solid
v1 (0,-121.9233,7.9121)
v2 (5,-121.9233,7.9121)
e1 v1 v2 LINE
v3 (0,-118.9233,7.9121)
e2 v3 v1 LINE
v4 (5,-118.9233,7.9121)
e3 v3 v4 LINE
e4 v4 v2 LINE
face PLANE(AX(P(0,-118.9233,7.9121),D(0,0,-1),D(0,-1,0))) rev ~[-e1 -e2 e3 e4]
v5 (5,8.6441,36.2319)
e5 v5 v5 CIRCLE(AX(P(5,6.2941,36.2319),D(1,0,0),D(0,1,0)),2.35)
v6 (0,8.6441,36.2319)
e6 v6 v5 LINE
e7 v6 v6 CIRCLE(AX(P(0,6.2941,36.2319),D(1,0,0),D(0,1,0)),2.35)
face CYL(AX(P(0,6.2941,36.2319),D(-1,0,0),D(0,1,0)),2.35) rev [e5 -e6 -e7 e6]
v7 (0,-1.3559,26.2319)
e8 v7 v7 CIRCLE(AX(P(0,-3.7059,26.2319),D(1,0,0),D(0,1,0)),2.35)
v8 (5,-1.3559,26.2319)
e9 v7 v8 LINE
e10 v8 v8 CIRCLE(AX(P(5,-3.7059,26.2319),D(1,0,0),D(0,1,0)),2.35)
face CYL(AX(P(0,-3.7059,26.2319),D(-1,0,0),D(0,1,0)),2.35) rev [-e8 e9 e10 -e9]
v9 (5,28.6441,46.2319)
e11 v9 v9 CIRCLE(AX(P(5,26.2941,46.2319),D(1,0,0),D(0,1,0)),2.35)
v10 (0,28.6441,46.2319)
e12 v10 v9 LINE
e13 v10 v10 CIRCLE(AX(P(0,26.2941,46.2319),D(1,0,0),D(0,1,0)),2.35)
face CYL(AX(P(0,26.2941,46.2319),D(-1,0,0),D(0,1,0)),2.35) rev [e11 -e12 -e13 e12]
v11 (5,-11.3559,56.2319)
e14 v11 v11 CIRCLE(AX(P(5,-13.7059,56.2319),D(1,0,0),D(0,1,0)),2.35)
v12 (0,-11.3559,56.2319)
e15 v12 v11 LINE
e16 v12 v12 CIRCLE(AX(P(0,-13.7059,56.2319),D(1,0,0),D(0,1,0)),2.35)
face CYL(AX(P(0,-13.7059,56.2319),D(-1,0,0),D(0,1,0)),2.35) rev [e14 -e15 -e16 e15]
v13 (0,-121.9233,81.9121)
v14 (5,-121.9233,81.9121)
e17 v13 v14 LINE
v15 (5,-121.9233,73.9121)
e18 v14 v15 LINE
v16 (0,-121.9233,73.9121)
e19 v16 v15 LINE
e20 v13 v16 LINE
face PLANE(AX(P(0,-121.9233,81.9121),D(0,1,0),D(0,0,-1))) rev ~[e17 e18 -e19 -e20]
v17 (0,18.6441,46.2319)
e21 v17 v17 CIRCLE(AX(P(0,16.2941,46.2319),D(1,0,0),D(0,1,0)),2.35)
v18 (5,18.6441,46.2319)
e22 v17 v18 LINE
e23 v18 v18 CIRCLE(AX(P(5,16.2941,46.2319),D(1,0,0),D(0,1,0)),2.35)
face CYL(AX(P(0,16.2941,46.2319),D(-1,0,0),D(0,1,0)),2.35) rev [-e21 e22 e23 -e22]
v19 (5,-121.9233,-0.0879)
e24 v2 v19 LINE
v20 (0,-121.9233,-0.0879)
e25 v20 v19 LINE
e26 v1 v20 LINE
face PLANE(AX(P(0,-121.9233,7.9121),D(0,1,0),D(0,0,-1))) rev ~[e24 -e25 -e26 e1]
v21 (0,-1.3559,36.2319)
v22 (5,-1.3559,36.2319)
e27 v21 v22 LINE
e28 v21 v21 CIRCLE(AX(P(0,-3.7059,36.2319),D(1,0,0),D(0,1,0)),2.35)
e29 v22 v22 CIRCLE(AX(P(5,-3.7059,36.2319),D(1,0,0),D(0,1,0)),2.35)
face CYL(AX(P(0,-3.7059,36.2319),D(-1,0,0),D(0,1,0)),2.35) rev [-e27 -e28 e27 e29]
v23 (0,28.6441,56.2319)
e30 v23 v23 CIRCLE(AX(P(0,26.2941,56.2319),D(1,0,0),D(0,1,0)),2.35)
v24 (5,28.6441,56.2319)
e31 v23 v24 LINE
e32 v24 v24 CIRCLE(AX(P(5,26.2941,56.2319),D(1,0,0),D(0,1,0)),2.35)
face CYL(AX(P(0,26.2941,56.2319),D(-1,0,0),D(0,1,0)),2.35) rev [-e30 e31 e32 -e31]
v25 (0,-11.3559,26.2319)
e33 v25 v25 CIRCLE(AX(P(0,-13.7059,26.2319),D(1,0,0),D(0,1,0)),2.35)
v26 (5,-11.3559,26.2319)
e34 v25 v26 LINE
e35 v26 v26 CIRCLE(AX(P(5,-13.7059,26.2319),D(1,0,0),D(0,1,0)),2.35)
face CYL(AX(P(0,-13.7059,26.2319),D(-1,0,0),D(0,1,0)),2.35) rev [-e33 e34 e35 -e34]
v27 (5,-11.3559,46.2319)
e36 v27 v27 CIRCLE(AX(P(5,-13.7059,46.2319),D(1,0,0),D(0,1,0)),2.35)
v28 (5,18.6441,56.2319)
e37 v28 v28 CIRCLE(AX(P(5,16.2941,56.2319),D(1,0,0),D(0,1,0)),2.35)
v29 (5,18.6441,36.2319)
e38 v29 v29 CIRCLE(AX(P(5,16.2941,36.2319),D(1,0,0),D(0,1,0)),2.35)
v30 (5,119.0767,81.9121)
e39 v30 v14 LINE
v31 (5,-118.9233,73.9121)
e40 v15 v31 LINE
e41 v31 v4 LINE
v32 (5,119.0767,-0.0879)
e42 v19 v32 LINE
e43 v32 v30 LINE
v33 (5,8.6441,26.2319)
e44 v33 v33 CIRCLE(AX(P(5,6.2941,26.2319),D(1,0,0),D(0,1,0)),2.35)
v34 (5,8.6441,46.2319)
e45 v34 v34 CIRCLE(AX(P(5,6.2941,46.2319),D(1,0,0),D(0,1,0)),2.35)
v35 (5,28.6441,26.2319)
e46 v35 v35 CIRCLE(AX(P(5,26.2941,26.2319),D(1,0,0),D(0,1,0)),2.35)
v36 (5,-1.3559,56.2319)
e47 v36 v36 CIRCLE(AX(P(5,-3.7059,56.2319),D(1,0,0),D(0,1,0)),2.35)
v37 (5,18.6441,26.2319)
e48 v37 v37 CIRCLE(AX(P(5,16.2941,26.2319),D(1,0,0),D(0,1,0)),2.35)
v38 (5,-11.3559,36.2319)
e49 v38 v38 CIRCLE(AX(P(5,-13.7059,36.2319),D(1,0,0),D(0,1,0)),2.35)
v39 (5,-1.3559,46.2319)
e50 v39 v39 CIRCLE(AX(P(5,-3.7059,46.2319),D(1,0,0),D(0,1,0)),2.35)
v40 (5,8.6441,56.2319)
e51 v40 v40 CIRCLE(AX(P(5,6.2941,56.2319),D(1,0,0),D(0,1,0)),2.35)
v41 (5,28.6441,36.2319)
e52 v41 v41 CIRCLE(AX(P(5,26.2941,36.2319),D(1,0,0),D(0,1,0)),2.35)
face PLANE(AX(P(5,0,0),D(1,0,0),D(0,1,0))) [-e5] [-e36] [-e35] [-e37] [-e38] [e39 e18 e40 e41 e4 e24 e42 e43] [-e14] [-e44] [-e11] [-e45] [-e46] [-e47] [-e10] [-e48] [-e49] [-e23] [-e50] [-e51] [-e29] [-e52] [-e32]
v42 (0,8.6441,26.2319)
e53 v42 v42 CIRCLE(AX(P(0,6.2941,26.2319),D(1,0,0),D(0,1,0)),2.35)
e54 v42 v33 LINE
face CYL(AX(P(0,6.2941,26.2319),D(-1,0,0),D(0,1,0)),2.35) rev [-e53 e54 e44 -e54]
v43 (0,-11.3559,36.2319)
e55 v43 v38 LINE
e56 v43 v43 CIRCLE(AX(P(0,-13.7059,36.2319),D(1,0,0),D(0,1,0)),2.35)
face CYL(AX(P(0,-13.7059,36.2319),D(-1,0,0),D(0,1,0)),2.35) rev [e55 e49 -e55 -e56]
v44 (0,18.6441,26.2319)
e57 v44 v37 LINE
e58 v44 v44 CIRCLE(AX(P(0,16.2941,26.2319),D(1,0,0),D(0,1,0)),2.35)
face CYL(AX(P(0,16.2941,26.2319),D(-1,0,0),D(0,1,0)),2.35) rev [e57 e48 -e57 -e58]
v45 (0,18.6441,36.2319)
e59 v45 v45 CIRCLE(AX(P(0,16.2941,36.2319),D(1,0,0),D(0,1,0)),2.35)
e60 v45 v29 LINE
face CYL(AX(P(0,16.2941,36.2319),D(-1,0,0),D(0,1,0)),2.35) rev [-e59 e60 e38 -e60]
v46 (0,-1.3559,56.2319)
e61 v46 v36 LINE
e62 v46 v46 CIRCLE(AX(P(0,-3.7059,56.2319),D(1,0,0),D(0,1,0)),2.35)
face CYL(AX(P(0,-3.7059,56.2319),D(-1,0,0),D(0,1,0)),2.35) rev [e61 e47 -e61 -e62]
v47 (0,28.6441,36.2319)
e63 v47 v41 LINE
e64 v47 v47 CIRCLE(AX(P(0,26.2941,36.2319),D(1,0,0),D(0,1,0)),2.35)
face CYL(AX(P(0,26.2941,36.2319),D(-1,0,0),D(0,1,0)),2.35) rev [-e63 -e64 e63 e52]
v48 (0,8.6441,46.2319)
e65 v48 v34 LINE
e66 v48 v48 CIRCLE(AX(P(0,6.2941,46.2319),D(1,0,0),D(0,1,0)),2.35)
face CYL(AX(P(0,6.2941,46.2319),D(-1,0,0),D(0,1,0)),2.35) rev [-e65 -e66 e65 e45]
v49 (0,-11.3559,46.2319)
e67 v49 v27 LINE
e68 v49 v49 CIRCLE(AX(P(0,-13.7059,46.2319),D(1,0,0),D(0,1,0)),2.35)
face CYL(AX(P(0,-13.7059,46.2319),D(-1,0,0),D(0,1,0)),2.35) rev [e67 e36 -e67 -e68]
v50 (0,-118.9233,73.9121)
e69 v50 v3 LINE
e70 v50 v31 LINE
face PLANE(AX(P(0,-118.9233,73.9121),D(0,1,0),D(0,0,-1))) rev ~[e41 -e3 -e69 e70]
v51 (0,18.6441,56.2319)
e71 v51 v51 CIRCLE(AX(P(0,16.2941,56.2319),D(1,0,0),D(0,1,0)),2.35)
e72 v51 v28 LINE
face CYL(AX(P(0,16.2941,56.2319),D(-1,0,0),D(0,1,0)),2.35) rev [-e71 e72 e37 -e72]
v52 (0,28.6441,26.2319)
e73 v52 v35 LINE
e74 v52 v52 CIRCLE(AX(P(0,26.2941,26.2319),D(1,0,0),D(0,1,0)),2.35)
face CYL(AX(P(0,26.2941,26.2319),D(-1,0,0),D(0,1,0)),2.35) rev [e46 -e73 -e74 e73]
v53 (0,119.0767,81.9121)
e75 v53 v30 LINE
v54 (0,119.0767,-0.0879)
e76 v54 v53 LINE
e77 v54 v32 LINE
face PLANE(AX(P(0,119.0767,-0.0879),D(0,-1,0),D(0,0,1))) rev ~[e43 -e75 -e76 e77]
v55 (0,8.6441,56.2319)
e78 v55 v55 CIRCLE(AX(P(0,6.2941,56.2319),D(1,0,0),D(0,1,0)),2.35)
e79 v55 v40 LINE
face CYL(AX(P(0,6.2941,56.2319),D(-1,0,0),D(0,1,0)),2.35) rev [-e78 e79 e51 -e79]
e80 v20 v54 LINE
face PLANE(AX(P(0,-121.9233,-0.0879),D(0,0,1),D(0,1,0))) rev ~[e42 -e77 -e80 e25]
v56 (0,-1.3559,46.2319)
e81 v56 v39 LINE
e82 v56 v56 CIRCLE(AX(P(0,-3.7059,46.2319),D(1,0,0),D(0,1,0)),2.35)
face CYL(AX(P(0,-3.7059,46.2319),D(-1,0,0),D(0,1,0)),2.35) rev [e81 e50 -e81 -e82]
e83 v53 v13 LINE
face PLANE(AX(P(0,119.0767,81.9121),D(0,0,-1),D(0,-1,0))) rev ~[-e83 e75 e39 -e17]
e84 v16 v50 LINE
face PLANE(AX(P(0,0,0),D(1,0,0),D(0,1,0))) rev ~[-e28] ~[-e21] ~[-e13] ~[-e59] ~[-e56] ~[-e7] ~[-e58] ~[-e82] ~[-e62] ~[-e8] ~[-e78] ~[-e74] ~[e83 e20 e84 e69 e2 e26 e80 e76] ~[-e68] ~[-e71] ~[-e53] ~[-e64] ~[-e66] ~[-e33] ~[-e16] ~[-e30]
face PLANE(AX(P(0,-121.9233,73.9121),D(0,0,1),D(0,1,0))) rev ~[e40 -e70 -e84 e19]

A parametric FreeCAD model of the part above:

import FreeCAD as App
import Part
import Sketcher
from FreeCAD import Vector
Q = App.Units.Quantity

doc = App.newDocument("Part")
body = doc.addObject("PartDesign::Body", "Body")

# Sketch on YZ plane
sketch1 = body.newObject("Sketcher::SketchObject", "Sketch")
sketch1.AttachmentSupport = (doc.getObject("YZ_Plane"), [""])
sketch1.MapMode = "FlatFace"
sketch1.addGeometry([
    Part.LineSegment(Vector(119.1, -0.1, 0), Vector(119.1, 81.9, 0)),  # 0
    Part.LineSegment(Vector(119.1, 81.9, 0), Vector(-121.9, 81.9, 0)),  # 1
    Part.LineSegment(Vector(-121.9, 81.9, 0), Vector(-121.9, 73.9, 0)),  # 2
    Part.LineSegment(Vector(-121.9, 73.9, 0), Vector(-118.9, 73.9, 0)),  # 3
    Part.LineSegment(Vector(-118.9, 73.9, 0), Vector(-118.9, 7.9, 0)),  # 4
    Part.LineSegment(Vector(-118.9, 7.9, 0), Vector(-121.9, 7.9, 0)),  # 5
    Part.LineSegment(Vector(-121.9, 7.9, 0), Vector(-121.9, -0.1, 0)),  # 6
    Part.LineSegment(Vector(-121.9, -0.1, 0), Vector(119.1, -0.1, 0)),  # 7
    Part.Circle(Vector(-13.7, 26.2, 0), Vector(0, 0, 1), 2.4),  # 8
    Part.Circle(Vector(-3.7, 26.2, 0), Vector(0, 0, 1), 2.4),  # 9
    Part.Circle(Vector(-13.7, 36.2, 0), Vector(0, 0, 1), 2.4),  # 10
    Part.Circle(Vector(-3.7, 36.2, 0), Vector(0, 0, 1), 2.4),  # 11
    Part.Circle(Vector(6.3, 26.2, 0), Vector(0, 0, 1), 2.4),  # 12
    Part.Circle(Vector(16.3, 26.2, 0), Vector(0, 0, 1), 2.4),  # 13
    Part.Circle(Vector(26.3, 26.2, 0), Vector(0, 0, 1), 2.4),  # 14
    Part.Circle(Vector(6.3, 36.2, 0), Vector(0, 0, 1), 2.4),  # 15
    Part.Circle(Vector(16.3, 36.2, 0), Vector(0, 0, 1), 2.4),  # 16
    Part.Circle(Vector(26.3, 36.2, 0), Vector(0, 0, 1), 2.4),  # 17
    Part.Circle(Vector(-13.7, 46.2, 0), Vector(0, 0, 1), 2.4),  # 18
    Part.Circle(Vector(-3.7, 46.2, 0), Vector(0, 0, 1), 2.4),  # 19
    Part.Circle(Vector(-13.7, 56.2, 0), Vector(0, 0, 1), 2.4),  # 20
    Part.Circle(Vector(-3.7, 56.2, 0), Vector(0, 0, 1), 2.4),  # 21
    Part.Circle(Vector(6.3, 46.2, 0), Vector(0, 0, 1), 2.4),  # 22
    Part.Circle(Vector(16.3, 46.2, 0), Vector(0, 0, 1), 2.4),  # 23
    Part.Circle(Vector(26.3, 46.2, 0), Vector(0, 0, 1), 2.4),  # 24
    Part.Circle(Vector(6.3, 56.2, 0), Vector(0, 0, 1), 2.4),  # 25
    Part.Circle(Vector(16.3, 56.2, 0), Vector(0, 0, 1), 2.4),  # 26
    Part.Circle(Vector(26.3, 56.2, 0), Vector(0, 0, 1), 2.4),  # 27
], False)
sketch1.addConstraint([
    Sketcher.Constraint("Coincident", 0, 2, 1, 1),
    Sketcher.Constraint("Coincident", 1, 2, 2, 1),
    Sketcher.Constraint("Coincident", 2, 2, 3, 1),
    Sketcher.Constraint("Coincident", 3, 2, 4, 1),
    Sketcher.Constraint("Coincident", 4, 2, 5, 1),
    Sketcher.Constraint("Coincident", 5, 2, 6, 1),
    Sketcher.Constraint("Coincident", 6, 2, 7, 1),
    Sketcher.Constraint("Coincident", 7, 2, 0, 1),
    Sketcher.Constraint("Vertical", 0),
    Sketcher.Constraint("Horizontal", 1),
    Sketcher.Constraint("Vertical", 2),
    Sketcher.Constraint("Horizontal", 3),
    Sketcher.Constraint("Vertical", 4),
    Sketcher.Constraint("Horizontal", 5),
    Sketcher.Constraint("Vertical", 6),
    Sketcher.Constraint("Horizontal", 7),
    Sketcher.Constraint("Equal", 8, 9),
    Sketcher.Constraint("Equal", 9, 10),
    Sketcher.Constraint("Equal", 10, 11),
    Sketcher.Constraint("Equal", 11, 12),
    Sketcher.Constraint("Equal", 12, 13),
    Sketcher.Constraint("Equal", 13, 14),
    Sketcher.Constraint("Equal", 14, 15),
    Sketcher.Constraint("Equal", 15, 16),
    Sketcher.Constraint("Equal", 16, 17),
    Sketcher.Constraint("Equal", 17, 18),
    Sketcher.Constraint("Equal", 18, 19),
    Sketcher.Constraint("Equal", 19, 20),
    Sketcher.Constraint("Equal", 20, 21),
    Sketcher.Constraint("Equal", 21, 22),
    Sketcher.Constraint("Equal", 22, 23),
    Sketcher.Constraint("Equal", 23, 24),
    Sketcher.Constraint("Equal", 24, 25),
    Sketcher.Constraint("Equal", 25, 26),
    Sketcher.Constraint("Equal", 26, 27),
    Sketcher.Constraint("Horizontal", 8, 3, 9, 3),
    Sketcher.Constraint("Horizontal", 10, 3, 11, 3),
    Sketcher.Constraint("Horizontal", 9, 3, 12, 3),
    Sketcher.Constraint("Horizontal", 12, 3, 13, 3),
    Sketcher.Constraint("Horizontal", 13, 3, 14, 3),
    Sketcher.Constraint("Horizontal", 11, 3, 15, 3),
    Sketcher.Constraint("Horizontal", 15, 3, 16, 3),
    Sketcher.Constraint("Horizontal", 16, 3, 17, 3),
    Sketcher.Constraint("Horizontal", 18, 3, 19, 3),
    Sketcher.Constraint("Horizontal", 20, 3, 21, 3),
    Sketcher.Constraint("Horizontal", 19, 3, 22, 3),
    Sketcher.Constraint("Horizontal", 22, 3, 23, 3),
    Sketcher.Constraint("Horizontal", 23, 3, 24, 3),
    Sketcher.Constraint("Horizontal", 21, 3, 25, 3),
    Sketcher.Constraint("Horizontal", 25, 3, 26, 3),
    Sketcher.Constraint("Horizontal", 26, 3, 27, 3),
    Sketcher.Constraint("Vertical", 8, 3, 10, 3),
    Sketcher.Constraint("Vertical", 9, 3, 11, 3),
    Sketcher.Constraint("Vertical", 12, 3, 15, 3),
    Sketcher.Constraint("Vertical", 13, 3, 16, 3),
    Sketcher.Constraint("Vertical", 14, 3, 17, 3),
    Sketcher.Constraint("Vertical", 10, 3, 18, 3),
    Sketcher.Constraint("Vertical", 11, 3, 19, 3),
    Sketcher.Constraint("Vertical", 18, 3, 20, 3),
    Sketcher.Constraint("Vertical", 19, 3, 21, 3),
    Sketcher.Constraint("Vertical", 15, 3, 22, 3),
    Sketcher.Constraint("Vertical", 16, 3, 23, 3),
    Sketcher.Constraint("Vertical", 17, 3, 24, 3),
    Sketcher.Constraint("Vertical", 22, 3, 25, 3),
    Sketcher.Constraint("Vertical", 23, 3, 26, 3),
    Sketcher.Constraint("Vertical", 24, 3, 27, 3),
    Sketcher.Constraint("Vertical", 2, 2, 5, 2),
    Sketcher.Constraint("Equal", 2, 6),
    Sketcher.Constraint("Diameter", 8, Q("4.7 mm")),
    Sketcher.Constraint("DistanceX", 1, 2, 1, 1, Q("241 mm")),
    Sketcher.Constraint("DistanceX", 3, 1, 3, 2, Q("3 mm")),
    Sketcher.Constraint("DistanceY", 0, 1, 0, 2, Q("82 mm")),
    Sketcher.Constraint("DistanceY", 2, 2, 2, 1, Q("8 mm")),
    Sketcher.Constraint("DistanceX", 8, 3, 9, 3, Q("10 mm")),
    Sketcher.Constraint("DistanceY", 8, 3, 10, 3, Q("10 mm")),
    Sketcher.Constraint("DistanceX", 9, 3, 12, 3, Q("10 mm")),
    Sketcher.Constraint("DistanceX", 12, 3, 13, 3, Q("10 mm")),
    Sketcher.Constraint("DistanceX", 13, 3, 14, 3, Q("10 mm")),
    Sketcher.Constraint("DistanceY", 10, 3, 18, 3, Q("10 mm")),
    Sketcher.Constraint("DistanceY", 18, 3, 20, 3, Q("10 mm")),
    Sketcher.Constraint("DistanceX", 8, 3, -1, 1, Q("13.706 mm")),
    Sketcher.Constraint("DistanceY", -1, 1, 8, 3, Q("26.232 mm")),
    Sketcher.Constraint("DistanceY", -1, 1, 0, 2, Q("81.912 mm")),
    Sketcher.Constraint("DistanceX", -1, 1, 0, 2, Q("119.0767 mm")),
])
pad1 = body.newObject("PartDesign::Pad", "Pad")
pad1.Profile = sketch1
pad1.Length = 5

doc.recompute()
